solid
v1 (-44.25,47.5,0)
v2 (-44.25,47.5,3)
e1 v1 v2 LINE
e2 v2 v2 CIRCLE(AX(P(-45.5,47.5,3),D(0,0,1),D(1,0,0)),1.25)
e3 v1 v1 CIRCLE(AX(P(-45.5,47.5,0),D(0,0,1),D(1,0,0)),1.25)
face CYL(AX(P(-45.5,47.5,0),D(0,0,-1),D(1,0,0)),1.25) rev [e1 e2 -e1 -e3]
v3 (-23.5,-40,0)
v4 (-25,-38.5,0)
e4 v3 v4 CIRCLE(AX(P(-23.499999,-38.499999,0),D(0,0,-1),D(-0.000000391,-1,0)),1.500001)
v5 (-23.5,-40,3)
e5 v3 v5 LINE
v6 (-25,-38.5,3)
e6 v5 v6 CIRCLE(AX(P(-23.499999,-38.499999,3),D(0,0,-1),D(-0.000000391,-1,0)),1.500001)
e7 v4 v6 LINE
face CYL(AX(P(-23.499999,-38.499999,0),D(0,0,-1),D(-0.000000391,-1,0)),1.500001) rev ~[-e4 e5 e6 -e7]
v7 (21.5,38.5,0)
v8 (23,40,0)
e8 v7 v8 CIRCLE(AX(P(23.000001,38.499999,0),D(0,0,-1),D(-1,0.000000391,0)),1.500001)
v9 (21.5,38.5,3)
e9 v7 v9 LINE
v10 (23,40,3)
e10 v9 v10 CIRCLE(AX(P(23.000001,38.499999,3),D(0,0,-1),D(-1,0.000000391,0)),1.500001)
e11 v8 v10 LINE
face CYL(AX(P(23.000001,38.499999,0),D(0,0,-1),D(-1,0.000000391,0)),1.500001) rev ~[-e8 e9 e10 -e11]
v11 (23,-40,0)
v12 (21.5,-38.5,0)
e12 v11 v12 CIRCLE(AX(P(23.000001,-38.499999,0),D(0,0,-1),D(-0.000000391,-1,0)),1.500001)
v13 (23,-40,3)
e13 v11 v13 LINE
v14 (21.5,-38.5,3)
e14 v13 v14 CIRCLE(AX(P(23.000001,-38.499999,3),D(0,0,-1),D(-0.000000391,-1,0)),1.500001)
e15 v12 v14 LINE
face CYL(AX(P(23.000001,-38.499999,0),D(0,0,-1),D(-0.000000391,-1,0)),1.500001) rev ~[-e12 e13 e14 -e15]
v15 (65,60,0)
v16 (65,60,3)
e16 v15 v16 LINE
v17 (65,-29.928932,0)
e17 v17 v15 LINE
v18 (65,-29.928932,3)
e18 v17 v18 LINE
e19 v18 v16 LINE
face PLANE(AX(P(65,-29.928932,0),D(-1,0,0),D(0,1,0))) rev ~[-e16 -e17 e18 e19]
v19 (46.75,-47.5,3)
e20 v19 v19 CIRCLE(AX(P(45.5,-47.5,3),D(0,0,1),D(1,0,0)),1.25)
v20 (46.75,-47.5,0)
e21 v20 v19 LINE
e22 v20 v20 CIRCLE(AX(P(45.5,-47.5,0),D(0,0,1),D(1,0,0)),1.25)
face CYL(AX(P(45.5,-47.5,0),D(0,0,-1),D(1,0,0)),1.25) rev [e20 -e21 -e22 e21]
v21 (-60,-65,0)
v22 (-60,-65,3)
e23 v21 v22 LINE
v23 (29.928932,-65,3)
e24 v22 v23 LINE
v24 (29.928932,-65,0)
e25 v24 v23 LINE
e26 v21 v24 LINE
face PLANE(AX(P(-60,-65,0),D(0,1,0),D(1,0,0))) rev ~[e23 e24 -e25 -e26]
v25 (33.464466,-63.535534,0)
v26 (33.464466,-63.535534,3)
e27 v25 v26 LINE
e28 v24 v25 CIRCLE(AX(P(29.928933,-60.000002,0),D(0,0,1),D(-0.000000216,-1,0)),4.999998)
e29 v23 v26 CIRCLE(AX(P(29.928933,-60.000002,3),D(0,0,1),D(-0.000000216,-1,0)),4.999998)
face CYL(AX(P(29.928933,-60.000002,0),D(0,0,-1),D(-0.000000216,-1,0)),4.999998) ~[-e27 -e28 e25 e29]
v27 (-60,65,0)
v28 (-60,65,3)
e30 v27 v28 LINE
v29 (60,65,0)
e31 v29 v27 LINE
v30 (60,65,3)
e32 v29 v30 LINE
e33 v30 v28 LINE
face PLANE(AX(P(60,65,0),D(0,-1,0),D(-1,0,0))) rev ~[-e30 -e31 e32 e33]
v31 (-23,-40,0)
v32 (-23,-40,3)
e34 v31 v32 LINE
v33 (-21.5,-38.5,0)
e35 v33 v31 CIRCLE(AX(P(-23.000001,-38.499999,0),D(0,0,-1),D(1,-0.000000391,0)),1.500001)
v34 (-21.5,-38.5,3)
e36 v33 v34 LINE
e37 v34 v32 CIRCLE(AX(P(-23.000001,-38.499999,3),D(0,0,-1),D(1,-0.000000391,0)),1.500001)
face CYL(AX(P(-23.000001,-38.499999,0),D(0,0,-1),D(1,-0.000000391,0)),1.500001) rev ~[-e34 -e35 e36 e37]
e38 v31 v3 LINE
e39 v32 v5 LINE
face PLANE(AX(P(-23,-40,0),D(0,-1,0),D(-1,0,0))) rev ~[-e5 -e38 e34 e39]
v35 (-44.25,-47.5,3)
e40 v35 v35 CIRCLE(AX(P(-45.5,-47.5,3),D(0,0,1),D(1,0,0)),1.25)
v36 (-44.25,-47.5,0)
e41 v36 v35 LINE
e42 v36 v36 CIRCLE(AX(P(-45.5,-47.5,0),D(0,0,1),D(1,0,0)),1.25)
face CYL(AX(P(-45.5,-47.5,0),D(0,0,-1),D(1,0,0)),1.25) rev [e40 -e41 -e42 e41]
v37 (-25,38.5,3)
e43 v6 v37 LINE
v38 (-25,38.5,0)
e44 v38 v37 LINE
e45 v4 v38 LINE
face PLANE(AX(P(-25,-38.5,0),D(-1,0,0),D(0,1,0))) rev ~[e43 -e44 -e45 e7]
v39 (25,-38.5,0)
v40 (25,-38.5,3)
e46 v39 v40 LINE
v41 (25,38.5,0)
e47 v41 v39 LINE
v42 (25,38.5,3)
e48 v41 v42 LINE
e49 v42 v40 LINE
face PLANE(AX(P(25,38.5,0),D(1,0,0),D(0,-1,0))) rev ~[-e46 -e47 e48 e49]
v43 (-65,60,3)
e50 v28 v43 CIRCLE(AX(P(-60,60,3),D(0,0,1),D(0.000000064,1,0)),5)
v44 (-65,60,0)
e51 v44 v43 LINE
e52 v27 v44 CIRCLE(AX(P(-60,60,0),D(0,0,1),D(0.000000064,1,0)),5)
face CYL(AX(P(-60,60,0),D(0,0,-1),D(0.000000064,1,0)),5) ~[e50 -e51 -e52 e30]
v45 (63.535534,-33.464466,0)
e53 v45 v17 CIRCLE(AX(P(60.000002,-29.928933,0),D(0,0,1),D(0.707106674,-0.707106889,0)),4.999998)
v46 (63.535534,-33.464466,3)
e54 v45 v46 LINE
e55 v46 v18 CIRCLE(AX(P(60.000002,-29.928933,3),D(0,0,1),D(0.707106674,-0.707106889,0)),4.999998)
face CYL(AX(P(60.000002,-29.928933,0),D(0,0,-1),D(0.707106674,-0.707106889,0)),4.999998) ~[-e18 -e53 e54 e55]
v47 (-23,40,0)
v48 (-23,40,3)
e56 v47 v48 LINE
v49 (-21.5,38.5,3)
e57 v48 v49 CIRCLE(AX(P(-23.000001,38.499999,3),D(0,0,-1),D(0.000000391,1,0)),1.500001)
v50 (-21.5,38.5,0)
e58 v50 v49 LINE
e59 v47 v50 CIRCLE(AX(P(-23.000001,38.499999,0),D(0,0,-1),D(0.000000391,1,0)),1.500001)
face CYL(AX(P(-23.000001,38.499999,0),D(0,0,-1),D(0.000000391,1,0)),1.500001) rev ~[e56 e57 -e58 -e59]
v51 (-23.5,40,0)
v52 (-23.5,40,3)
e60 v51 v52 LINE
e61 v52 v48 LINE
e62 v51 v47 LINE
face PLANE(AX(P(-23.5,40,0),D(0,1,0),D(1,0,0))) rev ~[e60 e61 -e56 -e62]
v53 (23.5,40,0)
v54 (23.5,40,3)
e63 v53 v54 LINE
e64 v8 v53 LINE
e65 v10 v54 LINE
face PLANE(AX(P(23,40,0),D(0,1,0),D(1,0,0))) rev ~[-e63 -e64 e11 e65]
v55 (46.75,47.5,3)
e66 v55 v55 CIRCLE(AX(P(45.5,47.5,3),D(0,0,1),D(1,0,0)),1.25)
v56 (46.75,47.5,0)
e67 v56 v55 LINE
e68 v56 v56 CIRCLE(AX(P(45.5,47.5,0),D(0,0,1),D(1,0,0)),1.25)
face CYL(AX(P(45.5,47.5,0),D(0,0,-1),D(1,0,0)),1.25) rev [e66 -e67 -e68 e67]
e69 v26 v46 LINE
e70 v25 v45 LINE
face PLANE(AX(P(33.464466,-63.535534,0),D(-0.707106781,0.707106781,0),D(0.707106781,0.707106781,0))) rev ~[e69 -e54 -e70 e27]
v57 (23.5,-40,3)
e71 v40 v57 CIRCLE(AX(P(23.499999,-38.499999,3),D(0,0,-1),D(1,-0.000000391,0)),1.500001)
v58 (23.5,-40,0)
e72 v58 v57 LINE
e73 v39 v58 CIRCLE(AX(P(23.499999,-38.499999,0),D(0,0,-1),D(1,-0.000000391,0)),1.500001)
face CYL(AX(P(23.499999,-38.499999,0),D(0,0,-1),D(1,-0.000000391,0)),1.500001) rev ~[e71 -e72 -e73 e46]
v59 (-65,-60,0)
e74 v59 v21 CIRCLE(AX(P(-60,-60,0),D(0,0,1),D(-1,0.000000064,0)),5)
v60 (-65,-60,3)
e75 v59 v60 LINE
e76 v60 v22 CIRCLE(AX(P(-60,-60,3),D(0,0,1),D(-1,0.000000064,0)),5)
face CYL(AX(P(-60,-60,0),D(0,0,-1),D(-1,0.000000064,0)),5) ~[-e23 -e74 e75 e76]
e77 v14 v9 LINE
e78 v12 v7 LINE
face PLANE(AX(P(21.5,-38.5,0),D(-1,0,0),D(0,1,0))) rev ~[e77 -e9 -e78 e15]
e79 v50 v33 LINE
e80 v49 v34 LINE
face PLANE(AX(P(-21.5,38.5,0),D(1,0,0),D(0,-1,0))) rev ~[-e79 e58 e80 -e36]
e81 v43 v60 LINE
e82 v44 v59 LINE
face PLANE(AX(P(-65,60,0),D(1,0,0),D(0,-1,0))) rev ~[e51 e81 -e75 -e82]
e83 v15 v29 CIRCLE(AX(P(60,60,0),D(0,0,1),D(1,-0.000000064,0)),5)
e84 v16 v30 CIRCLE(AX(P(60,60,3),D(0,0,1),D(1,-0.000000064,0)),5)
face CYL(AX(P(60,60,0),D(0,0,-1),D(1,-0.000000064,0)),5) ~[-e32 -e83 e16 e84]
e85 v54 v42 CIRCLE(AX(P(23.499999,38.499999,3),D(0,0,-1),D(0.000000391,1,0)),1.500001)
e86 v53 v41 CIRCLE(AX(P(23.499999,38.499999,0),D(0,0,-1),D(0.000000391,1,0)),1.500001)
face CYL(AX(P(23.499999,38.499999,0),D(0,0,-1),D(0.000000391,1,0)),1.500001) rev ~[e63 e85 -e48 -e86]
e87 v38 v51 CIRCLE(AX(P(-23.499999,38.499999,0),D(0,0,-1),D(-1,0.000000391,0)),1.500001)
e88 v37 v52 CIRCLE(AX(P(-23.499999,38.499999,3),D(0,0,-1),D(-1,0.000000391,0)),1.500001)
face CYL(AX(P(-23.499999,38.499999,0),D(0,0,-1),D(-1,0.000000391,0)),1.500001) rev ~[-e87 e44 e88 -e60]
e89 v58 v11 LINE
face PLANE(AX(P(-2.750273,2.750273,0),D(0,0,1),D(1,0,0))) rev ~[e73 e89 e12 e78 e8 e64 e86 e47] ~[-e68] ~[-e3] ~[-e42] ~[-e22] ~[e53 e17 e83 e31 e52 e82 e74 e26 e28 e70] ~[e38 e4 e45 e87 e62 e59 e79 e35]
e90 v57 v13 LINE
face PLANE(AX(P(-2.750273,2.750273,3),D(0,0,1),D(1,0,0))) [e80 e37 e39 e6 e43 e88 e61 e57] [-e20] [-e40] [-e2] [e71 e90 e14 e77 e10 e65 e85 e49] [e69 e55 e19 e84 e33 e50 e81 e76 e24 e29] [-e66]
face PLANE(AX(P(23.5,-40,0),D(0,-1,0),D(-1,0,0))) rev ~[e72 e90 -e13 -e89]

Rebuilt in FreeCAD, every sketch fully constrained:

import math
import FreeCAD as App
import Part
import Sketcher

doc = App.newDocument("Part")
body = doc.addObject("PartDesign::Body", "Body")

# Sketch on XY plane
sketch1 = doc.addObject("Sketcher::SketchObject", "Sketch")
body.addObject(sketch1)
sketch1.AttachmentSupport = (doc.XY_Plane, [""])
sketch1.MapMode = "FlatFace"
sketch1.addGeometry([
    Part.LineSegment(App.Vector(-60, -65, 0), App.Vector(29.9, -65, 0)),  # 0
    Part.ArcOfCircle(Part.Circle(App.Vector(29.9, -60, 0), App.Vector(0, 0, 1), 5), math.radians(-90), math.radians(-45)),  # 1
    Part.LineSegment(App.Vector(33.5, -63.5, 0), App.Vector(63.5, -33.5, 0)),  # 2
    Part.ArcOfCircle(Part.Circle(App.Vector(60, -29.9, 0), App.Vector(0, 0, 1), 5), math.radians(-45), math.radians(0)),  # 3
    Part.LineSegment(App.Vector(65, -29.9, 0), App.Vector(65, 60, 0)),  # 4
    Part.ArcOfCircle(Part.Circle(App.Vector(60, 60, 0), App.Vector(0, 0, 1), 5), math.radians(0), math.radians(90)),  # 5
    Part.LineSegment(App.Vector(60, 65, 0), App.Vector(-60, 65, 0)),  # 6
    Part.ArcOfCircle(Part.Circle(App.Vector(-60, 60, 0), App.Vector(0, 0, 1), 5), math.radians(90), math.radians(180)),  # 7
    Part.LineSegment(App.Vector(-65, 60, 0), App.Vector(-65, -60, 0)),  # 8
    Part.ArcOfCircle(Part.Circle(App.Vector(-60, -60, 0), App.Vector(0, 0, 1), 5), math.radians(180), math.radians(270)),  # 9
    Part.Circle(App.Vector(-45.5, -47.5, 0), App.Vector(0, 0, 1), 1.2),  # 10
    Part.Circle(App.Vector(45.5, -47.5, 0), App.Vector(0, 0, 1), 1.2),  # 11
    Part.LineSegment(App.Vector(-21.5, 38.5, 0), App.Vector(-21.5, -38.5, 0)),  # 12
    Part.ArcOfCircle(Part.Circle(App.Vector(-23, -38.5, 0), App.Vector(0, 0, 1), 1.5), math.radians(-90), math.radians(0)),  # 13
    Part.LineSegment(App.Vector(-23, -40, 0), App.Vector(-23.5, -40, 0)),  # 14
    Part.ArcOfCircle(Part.Circle(App.Vector(-23.5, -38.5, 0), App.Vector(0, 0, 1), 1.5), math.radians(-180), math.radians(-90)),  # 15
    Part.LineSegment(App.Vector(-25, -38.5, 0), App.Vector(-25, 38.5, 0)),  # 16
    Part.ArcOfCircle(Part.Circle(App.Vector(-23.5, 38.5, 0), App.Vector(0, 0, 1), 1.5), math.radians(90), math.radians(180)),  # 17
    Part.LineSegment(App.Vector(-23.5, 40, 0), App.Vector(-23, 40, 0)),  # 18
    Part.ArcOfCircle(Part.Circle(App.Vector(-23, 38.5, 0), App.Vector(0, 0, 1), 1.5), math.radians(0), math.radians(90)),  # 19
    Part.Circle(App.Vector(-45.5, 47.5, 0), App.Vector(0, 0, 1), 1.2),  # 20
    Part.LineSegment(App.Vector(25, 38.5, 0), App.Vector(25, -38.5, 0)),  # 21
    Part.ArcOfCircle(Part.Circle(App.Vector(23.5, -38.5, 0), App.Vector(0, 0, 1), 1.5), math.radians(-90), math.radians(0)),  # 22
    Part.LineSegment(App.Vector(23.5, -40, 0), App.Vector(23, -40, 0)),  # 23
    Part.ArcOfCircle(Part.Circle(App.Vector(23, -38.5, 0), App.Vector(0, 0, 1), 1.5), math.radians(-180), math.radians(-90)),  # 24
    Part.LineSegment(App.Vector(21.5, -38.5, 0), App.Vector(21.5, 38.5, 0)),  # 25
    Part.ArcOfCircle(Part.Circle(App.Vector(23, 38.5, 0), App.Vector(0, 0, 1), 1.5), math.radians(90), math.radians(180)),  # 26
    Part.LineSegment(App.Vector(23, 40, 0), App.Vector(23.5, 40, 0)),  # 27
    Part.ArcOfCircle(Part.Circle(App.Vector(23.5, 38.5, 0), App.Vector(0, 0, 1), 1.5), math.radians(0), math.radians(90)),  # 28
    Part.Circle(App.Vector(45.5, 47.5, 0), App.Vector(0, 0, 1), 1.2),  # 29
], False)
sketch1.addConstraint([
    Sketcher.Constraint("Tangent", 0, 2, 1, 1),
    Sketcher.Constraint("Tangent", 1, 2, 2, 1),
    Sketcher.Constraint("Tangent", 2, 2, 3, 1),
    Sketcher.Constraint("Tangent", 3, 2, 4, 1),
    Sketcher.Constraint("Tangent", 4, 2, 5, 1),
    Sketcher.Constraint("Tangent", 5, 2, 6, 1),
    Sketcher.Constraint("Tangent", 6, 2, 7, 1),
    Sketcher.Constraint("Tangent", 7, 2, 8, 1),
    Sketcher.Constraint("Tangent", 8, 2, 9, 1),
    Sketcher.Constraint("Tangent", 9, 2, 0, 1),
    Sketcher.Constraint("Tangent", 12, 2, 13, 2),
    Sketcher.Constraint("Tangent", 13, 1, 14, 1),
    Sketcher.Constraint("Tangent", 14, 2, 15, 2),
    Sketcher.Constraint("Tangent", 15, 1, 16, 1),
    Sketcher.Constraint("Tangent", 16, 2, 17, 2),
    Sketcher.Constraint("Tangent", 17, 1, 18, 1),
    Sketcher.Constraint("Tangent", 18, 2, 19, 2),
    Sketcher.Constraint("Tangent", 19, 1, 12, 1),
    Sketcher.Constraint("Tangent", 21, 2, 22, 2),
    Sketcher.Constraint("Tangent", 22, 1, 23, 1),
    Sketcher.Constraint("Tangent", 23, 2, 24, 2),
    Sketcher.Constraint("Tangent", 24, 1, 25, 1),
    Sketcher.Constraint("Tangent", 25, 2, 26, 2),
    Sketcher.Constraint("Tangent", 26, 1, 27, 1),
    Sketcher.Constraint("Tangent", 27, 2, 28, 2),
    Sketcher.Constraint("Tangent", 28, 1, 21, 1),
    Sketcher.Constraint("Horizontal", 0),
    Sketcher.Constraint("Vertical", 4),
    Sketcher.Constraint("Horizontal", 6),
    Sketcher.Constraint("Vertical", 8),
    Sketcher.Constraint("Vertical", 12),
    Sketcher.Constraint("Horizontal", 14),
    Sketcher.Constraint("Vertical", 16),
    Sketcher.Constraint("Horizontal", 18),
    Sketcher.Constraint("Vertical", 21),
    Sketcher.Constraint("Horizontal", 23),
    Sketcher.Constraint("Vertical", 25),
    Sketcher.Constraint("Horizontal", 27),
    Sketcher.Constraint("Equal", 1, 3),
    Sketcher.Constraint("Equal", 3, 5),
    Sketcher.Constraint("Equal", 5, 7),
    Sketcher.Constraint("Equal", 7, 9),
    Sketcher.Constraint("Equal", 10, 11),
    Sketcher.Constraint("Equal", 13, 15),
    Sketcher.Constraint("Equal", 15, 17),
    Sketcher.Constraint("Equal", 17, 19),
    Sketcher.Constraint("Equal", 11, 20),
    Sketcher.Constraint("Equal", 19, 22),
    Sketcher.Constraint("Equal", 22, 24),
    Sketcher.Constraint("Equal", 24, 26),
    Sketcher.Constraint("Equal", 26, 28),
    Sketcher.Constraint("Equal", 20, 29),
    Sketcher.Constraint("Symmetric", 5, 3, 9, 3, -1, 1),
    Sketcher.Constraint("Symmetric", 11, 3, 20, 3, -1, 1),
    Sketcher.Constraint("Symmetric", 17, 3, 22, 3, -1, 1),
    Sketcher.Constraint("Symmetric", 13, 3, 26, 3, -1, 1),
    Sketcher.Constraint("Symmetric", 10, 3, 29, 3, -1, 1),
    Sketcher.Constraint("Symmetric", 10, 3, 11, 3, -2),
    Sketcher.Constraint("Horizontal", 15, 3, 22, 3),
    Sketcher.Constraint("Equal", 0, 4),
    Sketcher.Constraint("Equal", 6, 8),
    Sketcher.Constraint("Radius", 5, 5.0),
    Sketcher.Constraint("Diameter", 10, 2.5),
    Sketcher.Constraint("Radius", 13, 1.500001),
    Sketcher.Constraint("DistanceX", 6, 2, 6, 1, 120.0),
    Sketcher.Constraint("DistanceY", 12, 2, 12, 1, 77.0),
    Sketcher.Constraint("DistanceX", 14, 2, 14, 1, 0.5),
    Sketcher.Constraint("DistanceX", 13, 3, -1, 1, 23.000001),
    Sketcher.Constraint("DistanceX", 10, 3, 11, 3, 91.0),
    Sketcher.Constraint("DistanceY", 10, 3, 13, 3, 9.000001),
    Sketcher.Constraint("DistanceX", 0, 1, 0, 2, 89.928932),
])
pad1 = doc.addObject("PartDesign::Pad", "Pad")
body.addObject(pad1)
pad1.Profile = sketch1
pad1.Length = 3

doc.recompute()
